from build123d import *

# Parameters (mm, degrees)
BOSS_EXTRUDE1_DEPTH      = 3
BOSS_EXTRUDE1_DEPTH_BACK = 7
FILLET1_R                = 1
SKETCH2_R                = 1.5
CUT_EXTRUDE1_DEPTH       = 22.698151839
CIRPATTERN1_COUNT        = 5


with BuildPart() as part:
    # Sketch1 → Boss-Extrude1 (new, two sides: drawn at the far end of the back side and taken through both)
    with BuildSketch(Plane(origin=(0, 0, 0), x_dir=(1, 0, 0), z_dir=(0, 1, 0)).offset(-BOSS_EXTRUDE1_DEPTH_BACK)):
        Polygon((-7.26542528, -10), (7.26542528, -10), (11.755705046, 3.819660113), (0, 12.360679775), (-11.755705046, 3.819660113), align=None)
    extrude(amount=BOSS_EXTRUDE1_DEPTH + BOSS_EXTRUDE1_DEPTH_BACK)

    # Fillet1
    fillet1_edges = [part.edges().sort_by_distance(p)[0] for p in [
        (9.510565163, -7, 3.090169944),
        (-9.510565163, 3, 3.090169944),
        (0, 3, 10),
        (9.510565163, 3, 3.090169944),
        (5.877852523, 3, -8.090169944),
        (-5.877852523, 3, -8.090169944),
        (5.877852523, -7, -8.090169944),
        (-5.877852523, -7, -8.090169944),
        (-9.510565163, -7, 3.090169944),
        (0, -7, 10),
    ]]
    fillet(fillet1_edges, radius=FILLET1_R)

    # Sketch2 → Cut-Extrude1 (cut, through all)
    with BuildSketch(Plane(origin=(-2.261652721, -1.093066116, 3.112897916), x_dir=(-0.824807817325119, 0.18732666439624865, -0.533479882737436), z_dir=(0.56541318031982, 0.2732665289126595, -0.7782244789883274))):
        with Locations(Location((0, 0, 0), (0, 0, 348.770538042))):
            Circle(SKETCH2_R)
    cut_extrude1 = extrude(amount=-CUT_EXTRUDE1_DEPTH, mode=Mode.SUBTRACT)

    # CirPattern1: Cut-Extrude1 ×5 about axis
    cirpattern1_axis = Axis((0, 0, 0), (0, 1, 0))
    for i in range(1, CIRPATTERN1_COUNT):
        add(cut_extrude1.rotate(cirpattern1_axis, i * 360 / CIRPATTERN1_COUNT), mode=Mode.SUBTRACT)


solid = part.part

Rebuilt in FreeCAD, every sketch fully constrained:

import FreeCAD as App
import Part
import Sketcher

V = App.Vector
Q = App.Units.Quantity


def edges_at(feature, points):
    """Names of the edges that pass closest to the given points."""
    edges = feature.Shape.Edges
    near = lambda p: min(range(len(edges)), key=lambda i: edges[i].distToShape(Part.Vertex(*p))[0])
    return sorted({f"Edge{near(p) + 1}" for p in points})


def add_polygon(sketch, points):
    """Adds a closed chain of lines whose ends are joined by coincident constraints."""
    first, n = sketch.GeometryCount, len(points)
    for a, b in zip(points, points[1:] + points[:1]):
        sketch.addGeometry(Part.LineSegment(App.Vector(*a, 0), App.Vector(*b, 0)), False)
    for i in range(n):
        sketch.addConstraint(Sketcher.Constraint("Coincident", first + i, 2, first + (i + 1) % n, 1))

doc = App.newDocument("Part")
body = doc.addObject("PartDesign::Body", "Body")

# Sketch on XZ plane
sketch1 = doc.addObject("Sketcher::SketchObject", "Sketch")
body.addObject(sketch1)
sketch1.AttachmentSupport = (doc.XZ_Plane, [""])
sketch1.MapMode = "FlatFace"
add_polygon(sketch1, [(-7, 10), (7, 10), (12, -4), (0, -12), (-12, -4)])  # lines 0-4
sketch1.addConstraint([
    Sketcher.Constraint("Horizontal", 0),
    Sketcher.Constraint("Symmetric", 1, 2, 3, 2, -2),
    Sketcher.Constraint("PointOnObject", 2, 2, -2),
    Sketcher.Constraint("Equal", 1, 2),
    Sketcher.Constraint("Equal", 3, 4),
    Sketcher.Constraint("Angle", 1, Q("-72 deg")),
    Sketcher.Constraint("Angle", 2, Q("-144 deg")),
    Sketcher.Constraint("DistanceY", -1, 1, 0, 2, 10.0),
    Sketcher.Constraint("DistanceX", 0, 1, 0, 2, 14.530851),
])
pad1 = doc.addObject("PartDesign::Pad", "Pad")
body.addObject(pad1)
pad1.Profile = sketch1
pad1.Type = "TwoLengths"
pad1.Length = 3
pad1.Length2 = 7
pad1.Reversed = True
doc.recompute()

fillet = doc.addObject("PartDesign::Fillet", "Fillet")
body.addObject(fillet)
fillet.Base = (pad1, edges_at(pad1, [
    (9.511, -7, 3.09),
    (-9.511, 3, 3.09),
    (0, 3, 10),
    (9.511, 3, 3.09),
    (5.878, 3, -8.09),
    (-5.878, 3, -8.09),
    (5.878, -7, -8.09),
    (-5.878, -7, -8.09),
    (-9.511, -7, 3.09),
    (0, -7, 10),
]))
fillet.Radius = 1

# Sketch on an angled plane
sketch2 = doc.addObject("Sketcher::SketchObject", "Sketch001")
body.addObject(sketch2)
sketch2.Placement = App.Placement(V(-2.261653, -1.093066, 3.112898), App.Rotation(V(-0.824807817, 0.187326664, -0.533479883), V(0, 0.943522191, 0.331309334), V(0.56541318, 0.273266529, -0.778224479), "ZXY"))
sketch2.addGeometry(Part.Circle(V(0, 0, 0), V(0, 0, 1), 1.5), False)
sketch2.addConstraint([
    Sketcher.Constraint("Coincident", 0, 3, -1, 1),
    Sketcher.Constraint("Diameter", 0, 3.0),
])
pocket1 = doc.addObject("PartDesign::Pocket", "Pocket")
body.addObject(pocket1)
pocket1.Profile = sketch2
pocket1.Type = "ThroughAll"
doc.recompute()

polarpattern = doc.addObject("PartDesign::PolarPattern", "PolarPattern")
body.addObject(polarpattern)
polarpattern.Originals = [pocket1]
polarpattern.Axis = (doc.Y_Axis, [""])
polarpattern.Angle = 360
polarpattern.Occurrences = 5
body.Tip = polarpattern

doc.recompute()
